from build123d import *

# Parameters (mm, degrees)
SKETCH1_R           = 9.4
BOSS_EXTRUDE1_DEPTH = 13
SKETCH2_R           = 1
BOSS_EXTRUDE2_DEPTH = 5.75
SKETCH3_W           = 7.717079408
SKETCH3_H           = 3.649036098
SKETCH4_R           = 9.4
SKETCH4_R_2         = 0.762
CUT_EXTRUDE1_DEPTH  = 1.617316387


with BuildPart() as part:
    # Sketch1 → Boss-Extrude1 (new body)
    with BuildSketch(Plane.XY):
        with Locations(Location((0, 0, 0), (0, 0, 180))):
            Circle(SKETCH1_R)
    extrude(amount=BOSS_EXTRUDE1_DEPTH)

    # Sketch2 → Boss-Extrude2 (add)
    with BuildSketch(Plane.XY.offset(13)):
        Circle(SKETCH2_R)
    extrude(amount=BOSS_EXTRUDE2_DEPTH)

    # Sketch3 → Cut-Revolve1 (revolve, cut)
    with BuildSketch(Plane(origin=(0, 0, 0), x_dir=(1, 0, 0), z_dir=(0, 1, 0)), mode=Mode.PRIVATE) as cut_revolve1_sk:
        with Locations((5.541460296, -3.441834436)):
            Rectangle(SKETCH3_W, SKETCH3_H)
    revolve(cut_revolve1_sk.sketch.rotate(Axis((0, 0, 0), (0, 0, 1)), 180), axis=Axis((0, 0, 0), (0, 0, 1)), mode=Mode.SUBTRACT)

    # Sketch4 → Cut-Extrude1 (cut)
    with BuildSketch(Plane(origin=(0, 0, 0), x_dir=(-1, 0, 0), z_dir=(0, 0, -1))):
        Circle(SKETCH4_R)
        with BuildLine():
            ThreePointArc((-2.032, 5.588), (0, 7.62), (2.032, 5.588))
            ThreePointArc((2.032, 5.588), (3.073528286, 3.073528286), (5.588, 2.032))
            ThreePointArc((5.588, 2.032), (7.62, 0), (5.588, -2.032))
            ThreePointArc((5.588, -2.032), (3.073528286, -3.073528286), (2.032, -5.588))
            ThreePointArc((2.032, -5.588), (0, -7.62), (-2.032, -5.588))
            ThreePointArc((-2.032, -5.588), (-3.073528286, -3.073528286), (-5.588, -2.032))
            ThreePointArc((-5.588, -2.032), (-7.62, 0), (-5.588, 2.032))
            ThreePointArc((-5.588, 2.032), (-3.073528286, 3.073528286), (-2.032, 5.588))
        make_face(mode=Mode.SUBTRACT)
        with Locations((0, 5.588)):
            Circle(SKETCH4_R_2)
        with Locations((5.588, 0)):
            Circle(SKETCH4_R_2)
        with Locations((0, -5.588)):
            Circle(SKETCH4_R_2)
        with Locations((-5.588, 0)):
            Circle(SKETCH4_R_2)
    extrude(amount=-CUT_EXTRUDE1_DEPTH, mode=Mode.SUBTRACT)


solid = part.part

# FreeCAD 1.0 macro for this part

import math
import FreeCAD as App
import Part
import Sketcher


def add_polygon(sketch, points):
    """Adds a closed chain of lines whose ends are joined by coincident constraints."""
    first, n = sketch.GeometryCount, len(points)
    for a, b in zip(points, points[1:] + points[:1]):
        sketch.addGeometry(Part.LineSegment(App.Vector(*a, 0), App.Vector(*b, 0)), False)
    for i in range(n):
        sketch.addConstraint(Sketcher.Constraint("Coincident", first + i, 2, first + (i + 1) % n, 1))

doc = App.newDocument("Part")
params = doc.addObject("Spreadsheet::Sheet", "Params")
for row, (alias, value) in enumerate([
    ("sketch1_diameter", "18.8 mm"),
    ("pad1_length", "13 mm"),
    ("sketch2_diameter", "2 mm"),
    ("pad2_length", "5.75 mm"),
    ("groove_angle", "360 deg"),
    ("sketch4_diameter", "18.8 mm"),
    ("pocket1_length", "1.617316 mm"),
], start=1):
    params.set(f"A{row}", alias)
    params.set(f"B{row}", "=" + value)
    params.setAlias(f"B{row}", alias)

body = doc.addObject("PartDesign::Body", "Body")

# Sketch on XY plane
sketch1 = body.newObject("Sketcher::SketchObject", "Sketch")
sketch1.AttachmentSupport = (doc.getObject("XY_Plane"), [""])
sketch1.MapMode = "FlatFace"
sketch1.addGeometry(Part.Circle(App.Vector(0, 0, 0), App.Vector(0, 0, 1), 9), False)
sketch1.addConstraint([
    Sketcher.Constraint("Coincident", 0, 3, -1, 1),
    Sketcher.Constraint("Diameter", 0, 18.8),
])
sketch1.setExpression("Constraints[1]", "Params.sketch1_diameter")
pad1 = body.newObject("PartDesign::Pad", "Pad")
pad1.Profile = sketch1
pad1.setExpression("Length", "Params.pad1_length")

# Sketch on XY plane
sketch2 = body.newObject("Sketcher::SketchObject", "Sketch001")
sketch2.AttachmentSupport = (doc.getObject("XY_Plane"), [""])
sketch2.MapMode = "FlatFace"
sketch2.AttachmentOffset = App.Placement(App.Vector(0, 0, 13), App.Rotation())
sketch2.addGeometry(Part.Circle(App.Vector(0, 0, 0), App.Vector(0, 0, 1), 1), False)
sketch2.addConstraint([
    Sketcher.Constraint("Coincident", 0, 3, -1, 1),
    Sketcher.Constraint("Diameter", 0, 2.0),
])
sketch2.setExpression("Constraints[1]", "Params.sketch2_diameter")
pad2 = body.newObject("PartDesign::Pad", "Pad001")
pad2.Profile = sketch2
pad2.setExpression("Length", "Params.pad2_length")

# Sketch on XZ plane
sketch3 = body.newObject("Sketcher::SketchObject", "Sketch002")
sketch3.AttachmentSupport = (doc.getObject("XZ_Plane"), [""])
sketch3.MapMode = "FlatFace"
add_polygon(sketch3, [(1.7, 1.6), (1.7, 5.3), (9.4, 5.3), (9.4, 1.6)])  # lines 0-3
sketch3.addConstraint([
    Sketcher.Constraint("Vertical", 0),
    Sketcher.Constraint("Horizontal", 1),
    Sketcher.Constraint("Vertical", 2),
    Sketcher.Constraint("Horizontal", 3),
    Sketcher.Constraint("DistanceX", -1, 1, 1, 2, 9.4),
    Sketcher.Constraint("DistanceX", 1, 1, 1, 2, 7.717079),
    Sketcher.Constraint("DistanceY", 0, 1, 0, 2, 3.649036),
    Sketcher.Constraint("DistanceY", -1, 1, 0, 2, 5.266352),
])
groove = body.newObject("PartDesign::Groove", "Groove")
groove.Profile = sketch3
groove.ReferenceAxis = (sketch3, ["V_Axis"])
groove.setExpression("Angle", "Params.groove_angle")

# Sketch on XY plane
sketch4 = body.newObject("Sketcher::SketchObject", "Sketch003")
sketch4.AttachmentSupport = (doc.getObject("XY_Plane"), [""])
sketch4.MapMode = "FlatFace"
sketch4.addGeometry([
    Part.Circle(App.Vector(0, 0, 0), App.Vector(0, 0, 1), 9.4),  # 0
    Part.ArcOfCircle(Part.Circle(App.Vector(5.6, 5.6, 0), App.Vector(0, 0, 1), 3.6), math.radians(180), math.radians(270)),  # 1
    Part.ArcOfCircle(Part.Circle(App.Vector(0, 5.6, 0), App.Vector(0, 0, 1), 2), math.radians(0), math.radians(180)),  # 2
    Part.ArcOfCircle(Part.Circle(App.Vector(-5.6, 5.6, 0), App.Vector(0, 0, 1), 3.6), math.radians(-90), math.radians(0)),  # 3
    Part.ArcOfCircle(Part.Circle(App.Vector(-5.6, 0, 0), App.Vector(0, 0, 1), 2), math.radians(90), math.radians(270)),  # 4
    Part.ArcOfCircle(Part.Circle(App.Vector(-5.6, -5.6, 0), App.Vector(0, 0, 1), 3.6), math.radians(0), math.radians(90)),  # 5
    Part.ArcOfCircle(Part.Circle(App.Vector(0, -5.6, 0), App.Vector(0, 0, 1), 2), math.radians(180), math.radians(360)),  # 6
    Part.ArcOfCircle(Part.Circle(App.Vector(5.6, -5.6, 0), App.Vector(0, 0, 1), 3.6), math.radians(90), math.radians(180)),  # 7
    Part.ArcOfCircle(Part.Circle(App.Vector(5.6, 0, 0), App.Vector(0, 0, 1), 2), math.radians(-90), math.radians(90)),  # 8
    Part.Circle(App.Vector(0, 5.6, 0), App.Vector(0, 0, 1), 0.8),  # 9
    Part.Circle(App.Vector(-5.6, 0, 0), App.Vector(0, 0, 1), 0.8),  # 10
    Part.Circle(App.Vector(0, -5.6, 0), App.Vector(0, 0, 1), 0.8),  # 11
    Part.Circle(App.Vector(5.6, 0, 0), App.Vector(0, 0, 1), 0.8),  # 12
], False)
sketch4.addConstraint([
    Sketcher.Constraint("Tangent", 1, 1, 2, 1),
    Sketcher.Constraint("Tangent", 2, 2, 3, 2),
    Sketcher.Constraint("Tangent", 3, 1, 4, 1),
    Sketcher.Constraint("Tangent", 4, 2, 5, 2),
    Sketcher.Constraint("Tangent", 5, 1, 6, 1),
    Sketcher.Constraint("Tangent", 6, 2, 7, 2),
    Sketcher.Constraint("Tangent", 7, 1, 8, 1),
    Sketcher.Constraint("Tangent", 8, 2, 1, 2),
    Sketcher.Constraint("Coincident", 0, 3, -1, 1),
    Sketcher.Constraint("Coincident", 9, 3, 2, 3),
    Sketcher.Constraint("Coincident", 10, 3, 4, 3),
    Sketcher.Constraint("Coincident", 11, 3, 6, 3),
    Sketcher.Constraint("Coincident", 12, 3, 8, 3),
    Sketcher.Constraint("Equal", 1, 3),
    Sketcher.Constraint("Equal", 2, 4),
    Sketcher.Constraint("Equal", 3, 5),
    Sketcher.Constraint("Equal", 4, 6),
    Sketcher.Constraint("Equal", 5, 7),
    Sketcher.Constraint("Equal", 6, 8),
    Sketcher.Constraint("Equal", 9, 10),
    Sketcher.Constraint("Equal", 10, 11),
    Sketcher.Constraint("Equal", 11, 12),
    Sketcher.Constraint("Symmetric", 1, 3, 5, 3, -1, 1),
    Sketcher.Constraint("Symmetric", 1, 3, 3, 3, -2),
    Sketcher.Constraint("Horizontal", 1, 3, 2, 3),
    Sketcher.Constraint("Horizontal", 5, 3, 6, 3),
    Sketcher.Constraint("Vertical", 3, 3, 4, 3),
    Sketcher.Constraint("Vertical", 7, 3, 8, 3),
    Sketcher.Constraint("Diameter", 0, 18.8),
    Sketcher.Constraint("Diameter", 9, 1.524),
    Sketcher.Constraint("Radius", 1, 3.556),
    Sketcher.Constraint("Radius", 2, 2.032),
])
sketch4.setExpression("Constraints[28]", "Params.sketch4_diameter")
pocket1 = body.newObject("PartDesign::Pocket", "Pocket")
pocket1.Profile = sketch4
pocket1.setExpression("Length", "Params.pocket1_length")
pocket1.Reversed = True

doc.recompute()
